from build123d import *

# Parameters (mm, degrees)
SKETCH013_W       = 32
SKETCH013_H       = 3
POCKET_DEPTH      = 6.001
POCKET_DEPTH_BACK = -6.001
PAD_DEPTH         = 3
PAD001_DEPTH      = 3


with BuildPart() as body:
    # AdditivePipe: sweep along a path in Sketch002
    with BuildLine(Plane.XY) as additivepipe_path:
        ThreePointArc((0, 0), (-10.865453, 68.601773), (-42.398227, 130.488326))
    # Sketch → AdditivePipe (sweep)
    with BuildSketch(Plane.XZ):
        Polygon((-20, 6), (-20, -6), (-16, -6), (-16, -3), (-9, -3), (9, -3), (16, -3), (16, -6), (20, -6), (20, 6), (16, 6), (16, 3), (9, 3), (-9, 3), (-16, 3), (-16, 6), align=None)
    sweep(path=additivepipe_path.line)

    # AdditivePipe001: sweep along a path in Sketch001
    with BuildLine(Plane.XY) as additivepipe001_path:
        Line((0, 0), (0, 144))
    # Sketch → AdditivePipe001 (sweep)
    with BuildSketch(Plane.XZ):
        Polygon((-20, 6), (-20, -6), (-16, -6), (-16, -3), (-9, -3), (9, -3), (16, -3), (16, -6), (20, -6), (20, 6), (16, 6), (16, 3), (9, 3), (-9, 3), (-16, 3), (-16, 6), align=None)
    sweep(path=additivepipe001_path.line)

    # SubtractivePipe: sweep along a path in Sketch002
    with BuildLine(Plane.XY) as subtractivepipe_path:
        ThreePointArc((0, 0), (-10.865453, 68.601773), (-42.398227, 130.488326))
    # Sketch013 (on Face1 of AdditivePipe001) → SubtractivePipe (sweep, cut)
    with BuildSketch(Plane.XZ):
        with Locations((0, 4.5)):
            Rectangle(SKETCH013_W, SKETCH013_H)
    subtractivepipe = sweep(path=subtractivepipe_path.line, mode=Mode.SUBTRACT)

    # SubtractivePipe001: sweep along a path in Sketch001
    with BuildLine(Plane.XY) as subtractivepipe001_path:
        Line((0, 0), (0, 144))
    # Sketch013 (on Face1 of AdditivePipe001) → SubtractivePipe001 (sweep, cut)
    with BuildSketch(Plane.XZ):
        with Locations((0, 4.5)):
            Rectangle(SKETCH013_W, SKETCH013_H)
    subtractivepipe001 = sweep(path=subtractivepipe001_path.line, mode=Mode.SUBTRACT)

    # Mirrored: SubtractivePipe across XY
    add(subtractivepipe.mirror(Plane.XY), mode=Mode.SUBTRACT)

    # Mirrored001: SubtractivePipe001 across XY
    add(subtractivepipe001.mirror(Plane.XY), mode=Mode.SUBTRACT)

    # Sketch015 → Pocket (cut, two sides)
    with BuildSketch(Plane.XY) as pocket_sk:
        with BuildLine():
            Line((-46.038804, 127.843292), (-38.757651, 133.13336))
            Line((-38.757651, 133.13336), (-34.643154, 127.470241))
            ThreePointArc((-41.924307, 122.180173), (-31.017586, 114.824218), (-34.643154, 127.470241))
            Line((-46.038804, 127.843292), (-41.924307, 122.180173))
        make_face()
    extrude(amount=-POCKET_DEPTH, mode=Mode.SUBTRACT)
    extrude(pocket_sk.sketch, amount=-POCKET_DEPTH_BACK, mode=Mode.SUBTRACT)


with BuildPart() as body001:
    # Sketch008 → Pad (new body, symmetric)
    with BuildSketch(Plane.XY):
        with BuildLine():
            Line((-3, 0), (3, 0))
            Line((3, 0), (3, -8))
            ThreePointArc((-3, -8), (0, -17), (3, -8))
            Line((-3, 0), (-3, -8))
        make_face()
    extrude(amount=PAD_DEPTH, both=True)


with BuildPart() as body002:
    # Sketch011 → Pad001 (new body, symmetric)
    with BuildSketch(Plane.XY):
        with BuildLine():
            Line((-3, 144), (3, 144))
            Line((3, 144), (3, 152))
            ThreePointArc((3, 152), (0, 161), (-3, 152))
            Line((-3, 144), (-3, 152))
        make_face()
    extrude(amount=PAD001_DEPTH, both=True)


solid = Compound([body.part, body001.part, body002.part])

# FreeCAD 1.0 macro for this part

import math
import FreeCAD as App
import Part
import Sketcher
Q = App.Units.Quantity

doc = App.newDocument("Part")
body = doc.addObject("PartDesign::Body", "Body")

# Sketch on XZ plane
sketch1 = body.newObject("Sketcher::SketchObject", "Sketch")
sketch1.AttachmentSupport = (doc.getObject("XZ_Plane"), [""])
sketch1.MapMode = "FlatFace"
sketch1.addGeometry([
    Part.LineSegment(App.Vector(-20, 6, 0), App.Vector(-20, -6, 0)),  # 0
    Part.LineSegment(App.Vector(-20, -6, 0), App.Vector(-16, -6, 0)),  # 1
    Part.LineSegment(App.Vector(-16, -6, 0), App.Vector(-16, -3, 0)),  # 2
    Part.LineSegment(App.Vector(-16, -3, 0), App.Vector(16, -3, 0)),  # 3
    Part.LineSegment(App.Vector(16, -3, 0), App.Vector(16, -6, 0)),  # 4
    Part.LineSegment(App.Vector(16, -6, 0), App.Vector(20, -6, 0)),  # 5
    Part.LineSegment(App.Vector(20, -6, 0), App.Vector(20, 6, 0)),  # 6
    Part.LineSegment(App.Vector(20, 6, 0), App.Vector(16, 6, 0)),  # 7
    Part.LineSegment(App.Vector(16, 6, 0), App.Vector(16, 3, 0)),  # 8
    Part.LineSegment(App.Vector(16, 3, 0), App.Vector(-16, 3, 0)),  # 9
    Part.LineSegment(App.Vector(-16, 3, 0), App.Vector(-16, 6, 0)),  # 10
    Part.LineSegment(App.Vector(-16, 6, 0), App.Vector(-20, 6, 0)),  # 11
], False)
sketch1.addConstraint([
    Sketcher.Constraint("Coincident", 0, 2, 1, 1),
    Sketcher.Constraint("Coincident", 1, 2, 2, 1),
    Sketcher.Constraint("Coincident", 2, 2, 3, 1),
    Sketcher.Constraint("Coincident", 3, 2, 4, 1),
    Sketcher.Constraint("Coincident", 4, 2, 5, 1),
    Sketcher.Constraint("Coincident", 5, 2, 6, 1),
    Sketcher.Constraint("Coincident", 6, 2, 7, 1),
    Sketcher.Constraint("Coincident", 7, 2, 8, 1),
    Sketcher.Constraint("Coincident", 8, 2, 9, 1),
    Sketcher.Constraint("Coincident", 9, 2, 10, 1),
    Sketcher.Constraint("Coincident", 10, 2, 11, 1),
    Sketcher.Constraint("Coincident", 11, 2, 0, 1),
    Sketcher.Constraint("Vertical", 0),
    Sketcher.Constraint("Horizontal", 1),
    Sketcher.Constraint("Vertical", 2),
    Sketcher.Constraint("Horizontal", 3),
    Sketcher.Constraint("Vertical", 4),
    Sketcher.Constraint("Horizontal", 5),
    Sketcher.Constraint("Vertical", 6),
    Sketcher.Constraint("Horizontal", 7),
    Sketcher.Constraint("Vertical", 8),
    Sketcher.Constraint("Horizontal", 9),
    Sketcher.Constraint("Vertical", 10),
    Sketcher.Constraint("Horizontal", 11),
    Sketcher.Constraint("Symmetric", 0, 2, 6, 2, -1, 1),
    Sketcher.Constraint("Symmetric", 2, 2, 8, 2, -1, 1),
    Sketcher.Constraint("Symmetric", 4, 2, 10, 2, -1, 1),
    Sketcher.Constraint("Symmetric", 1, 2, 4, 2, -2),
    Sketcher.Constraint("DistanceX", 1, 1, 1, 2, Q("4 mm")),
    Sketcher.Constraint("DistanceX", 3, 1, 3, 2, Q("32 mm")),
    Sketcher.Constraint("DistanceY", 0, 2, 0, 1, Q("12 mm")),
    Sketcher.Constraint("DistanceY", 2, 1, 2, 2, Q("3 mm")),
])

# Sketch on XY plane
sketch2 = body.newObject("Sketcher::SketchObject", "Sketch001")
sketch2.AttachmentSupport = (doc.getObject("XY_Plane"), [""])
sketch2.MapMode = "FlatFace"
sketch2.addGeometry(Part.ArcOfCircle(Part.Circle(App.Vector(-222, 0, 0), App.Vector(0, 0, 1), 222), math.radians(0), math.radians(36)), False)
sketch2.addConstraint([
    Sketcher.Constraint("Coincident", 0, 1, -1, 1),
    Sketcher.Constraint("Radius", 0, Q("221.999993 mm")),
    Sketcher.Constraint("DistanceX", 0, 2, -1, 1, Q("42.398227 mm")),
    Sketcher.Constraint("DistanceY", -1, 1, 0, 2, Q("130.488326 mm")),
])
doc.recompute()

additivepipe = body.newObject("PartDesign::AdditivePipe", "AdditivePipe")
additivepipe.Profile = sketch1
additivepipe.Spine = (sketch2, ["Edge1"])

# Sketch on XZ plane
sketch3 = body.newObject("Sketcher::SketchObject", "Sketch002")
sketch3.AttachmentSupport = (doc.getObject("XZ_Plane"), [""])
sketch3.MapMode = "FlatFace"
sketch3.addGeometry([
    Part.LineSegment(App.Vector(-20, 6, 0), App.Vector(-20, -6, 0)),  # 0
    Part.LineSegment(App.Vector(-20, -6, 0), App.Vector(-16, -6, 0)),  # 1
    Part.LineSegment(App.Vector(-16, -6, 0), App.Vector(-16, -3, 0)),  # 2
    Part.LineSegment(App.Vector(-16, -3, 0), App.Vector(16, -3, 0)),  # 3
    Part.LineSegment(App.Vector(16, -3, 0), App.Vector(16, -6, 0)),  # 4
    Part.LineSegment(App.Vector(16, -6, 0), App.Vector(20, -6, 0)),  # 5
    Part.LineSegment(App.Vector(20, -6, 0), App.Vector(20, 6, 0)),  # 6
    Part.LineSegment(App.Vector(20, 6, 0), App.Vector(16, 6, 0)),  # 7
    Part.LineSegment(App.Vector(16, 6, 0), App.Vector(16, 3, 0)),  # 8
    Part.LineSegment(App.Vector(16, 3, 0), App.Vector(-16, 3, 0)),  # 9
    Part.LineSegment(App.Vector(-16, 3, 0), App.Vector(-16, 6, 0)),  # 10
    Part.LineSegment(App.Vector(-16, 6, 0), App.Vector(-20, 6, 0)),  # 11
], False)
sketch3.addConstraint([
    Sketcher.Constraint("Coincident", 0, 2, 1, 1),
    Sketcher.Constraint("Coincident", 1, 2, 2, 1),
    Sketcher.Constraint("Coincident", 2, 2, 3, 1),
    Sketcher.Constraint("Coincident", 3, 2, 4, 1),
    Sketcher.Constraint("Coincident", 4, 2, 5, 1),
    Sketcher.Constraint("Coincident", 5, 2, 6, 1),
    Sketcher.Constraint("Coincident", 6, 2, 7, 1),
    Sketcher.Constraint("Coincident", 7, 2, 8, 1),
    Sketcher.Constraint("Coincident", 8, 2, 9, 1),
    Sketcher.Constraint("Coincident", 9, 2, 10, 1),
    Sketcher.Constraint("Coincident", 10, 2, 11, 1),
    Sketcher.Constraint("Coincident", 11, 2, 0, 1),
    Sketcher.Constraint("Vertical", 0),
    Sketcher.Constraint("Horizontal", 1),
    Sketcher.Constraint("Vertical", 2),
    Sketcher.Constraint("Horizontal", 3),
    Sketcher.Constraint("Vertical", 4),
    Sketcher.Constraint("Horizontal", 5),
    Sketcher.Constraint("Vertical", 6),
    Sketcher.Constraint("Horizontal", 7),
    Sketcher.Constraint("Vertical", 8),
    Sketcher.Constraint("Horizontal", 9),
    Sketcher.Constraint("Vertical", 10),
    Sketcher.Constraint("Horizontal", 11),
    Sketcher.Constraint("Symmetric", 0, 2, 6, 2, -1, 1),
    Sketcher.Constraint("Symmetric", 2, 2, 8, 2, -1, 1),
    Sketcher.Constraint("Symmetric", 4, 2, 10, 2, -1, 1),
    Sketcher.Constraint("Symmetric", 1, 2, 4, 2, -2),
    Sketcher.Constraint("DistanceX", 1, 1, 1, 2, Q("4 mm")),
    Sketcher.Constraint("DistanceX", 3, 1, 3, 2, Q("32 mm")),
    Sketcher.Constraint("DistanceY", 0, 2, 0, 1, Q("12 mm")),
    Sketcher.Constraint("DistanceY", 2, 1, 2, 2, Q("3 mm")),
])

# Sketch on XY plane
sketch4 = body.newObject("Sketcher::SketchObject", "Sketch003")
sketch4.AttachmentSupport = (doc.getObject("XY_Plane"), [""])
sketch4.MapMode = "FlatFace"
sketch4.addGeometry(Part.LineSegment(App.Vector(0, 0, 0), App.Vector(0, 144, 0)), False)
sketch4.addConstraint([
    Sketcher.Constraint("Vertical", 0),
    Sketcher.Constraint("Coincident", 0, 1, -1, 1),
    Sketcher.Constraint("DistanceY", 0, 1, 0, 2, Q("144 mm")),
])
doc.recompute()

additivepipe2 = body.newObject("PartDesign::AdditivePipe", "AdditivePipe001")
additivepipe2.Profile = sketch3
additivepipe2.Spine = (sketch4, ["Edge1"])

# Sketch on XZ plane
sketch5 = body.newObject("Sketcher::SketchObject", "Sketch004")
sketch5.AttachmentSupport = (doc.getObject("XZ_Plane"), [""])
sketch5.MapMode = "FlatFace"
sketch5.addGeometry([
    Part.LineSegment(App.Vector(-16, 6, 0), App.Vector(-16, 3, 0)),
    Part.LineSegment(App.Vector(-16, 3, 0), App.Vector(16, 3, 0)),
    Part.LineSegment(App.Vector(16, 3, 0), App.Vector(16, 6, 0)),
    Part.LineSegment(App.Vector(16, 6, 0), App.Vector(-16, 6, 0)),
], False)
sketch5.addConstraint([
    Sketcher.Constraint("Coincident", 0, 2, 1, 1),
    Sketcher.Constraint("Coincident", 1, 2, 2, 1),
    Sketcher.Constraint("Coincident", 2, 2, 3, 1),
    Sketcher.Constraint("Coincident", 3, 2, 0, 1),
    Sketcher.Constraint("Vertical", 0),
    Sketcher.Constraint("Horizontal", 1),
    Sketcher.Constraint("Vertical", 2),
    Sketcher.Constraint("Horizontal", 3),
    Sketcher.Constraint("DistanceX", 1, 1, 1, 2, Q("32 mm")),
    Sketcher.Constraint("DistanceY", 0, 2, 0, 1, Q("3 mm")),
    Sketcher.Constraint("DistanceX", 0, 2, -1, 1, Q("16 mm")),
    Sketcher.Constraint("DistanceY", -1, 1, 0, 2, Q("3 mm")),
])

# Sketch on XY plane
sketch6 = body.newObject("Sketcher::SketchObject", "Sketch005")
sketch6.AttachmentSupport = (doc.getObject("XY_Plane"), [""])
sketch6.MapMode = "FlatFace"
sketch6.addGeometry(Part.ArcOfCircle(Part.Circle(App.Vector(-222, 0, 0), App.Vector(0, 0, 1), 222), math.radians(0), math.radians(36)), False)
sketch6.addConstraint([
    Sketcher.Constraint("Coincident", 0, 1, -1, 1),
    Sketcher.Constraint("Radius", 0, Q("221.999993 mm")),
    Sketcher.Constraint("DistanceX", 0, 2, -1, 1, Q("42.398227 mm")),
    Sketcher.Constraint("DistanceY", -1, 1, 0, 2, Q("130.488326 mm")),
])
doc.recompute()

subtractivepipe = body.newObject("PartDesign::SubtractivePipe", "SubtractivePipe")
subtractivepipe.Profile = sketch5
subtractivepipe.Spine = (sketch6, ["Edge1"])

# Sketch on XZ plane
sketch7 = body.newObject("Sketcher::SketchObject", "Sketch006")
sketch7.AttachmentSupport = (doc.getObject("XZ_Plane"), [""])
sketch7.MapMode = "FlatFace"
sketch7.addGeometry([
    Part.LineSegment(App.Vector(-16, 6, 0), App.Vector(-16, 3, 0)),
    Part.LineSegment(App.Vector(-16, 3, 0), App.Vector(16, 3, 0)),
    Part.LineSegment(App.Vector(16, 3, 0), App.Vector(16, 6, 0)),
    Part.LineSegment(App.Vector(16, 6, 0), App.Vector(-16, 6, 0)),
], False)
sketch7.addConstraint([
    Sketcher.Constraint("Coincident", 0, 2, 1, 1),
    Sketcher.Constraint("Coincident", 1, 2, 2, 1),
    Sketcher.Constraint("Coincident", 2, 2, 3, 1),
    Sketcher.Constraint("Coincident", 3, 2, 0, 1),
    Sketcher.Constraint("Vertical", 0),
    Sketcher.Constraint("Horizontal", 1),
    Sketcher.Constraint("Vertical", 2),
    Sketcher.Constraint("Horizontal", 3),
    Sketcher.Constraint("DistanceX", 1, 1, 1, 2, Q("32 mm")),
    Sketcher.Constraint("DistanceY", 0, 2, 0, 1, Q("3 mm")),
    Sketcher.Constraint("DistanceX", 0, 2, -1, 1, Q("16 mm")),
    Sketcher.Constraint("DistanceY", -1, 1, 0, 2, Q("3 mm")),
])

# Sketch on XY plane
sketch8 = body.newObject("Sketcher::SketchObject", "Sketch007")
sketch8.AttachmentSupport = (doc.getObject("XY_Plane"), [""])
sketch8.MapMode = "FlatFace"
sketch8.addGeometry(Part.LineSegment(App.Vector(0, 0, 0), App.Vector(0, 144, 0)), False)
sketch8.addConstraint([
    Sketcher.Constraint("Vertical", 0),
    Sketcher.Constraint("Coincident", 0, 1, -1, 1),
    Sketcher.Constraint("DistanceY", 0, 1, 0, 2, Q("144 mm")),
])
doc.recompute()

subtractivepipe2 = body.newObject("PartDesign::SubtractivePipe", "SubtractivePipe001")
subtractivepipe2.Profile = sketch7
subtractivepipe2.Spine = (sketch8, ["Edge1"])
doc.recompute()

mirrored = body.newObject("PartDesign::Mirrored", "Mirrored")
mirrored.Originals = [subtractivepipe]
mirrored.MirrorPlane = (doc.getObject("XY_Plane"), [""])
body.Tip = mirrored
doc.recompute()

mirrored2 = body.newObject("PartDesign::Mirrored", "Mirrored001")
mirrored2.Originals = [subtractivepipe2]
mirrored2.MirrorPlane = (doc.getObject("XY_Plane"), [""])
body.Tip = mirrored2

# Sketch on XY plane
sketch9 = body.newObject("Sketcher::SketchObject", "Sketch008")
sketch9.AttachmentSupport = (doc.getObject("XY_Plane"), [""])
sketch9.MapMode = "FlatFace"
sketch9.addGeometry([
    Part.LineSegment(App.Vector(-39, 133, 0), App.Vector(-46, 128, 0)),
    Part.LineSegment(App.Vector(-46, 128, 0), App.Vector(-42, 122, 0)),
    Part.ArcOfCircle(Part.Circle(App.Vector(-35, 120, 0), App.Vector(0, 0, 1), 7), math.radians(166), math.radians(446)),
    Part.LineSegment(App.Vector(-35, 127, 0), App.Vector(-39, 133, 0)),
], False)
sketch9.addConstraint([
    Sketcher.Constraint("Coincident", 0, 2, 1, 1),
    Sketcher.Constraint("Coincident", 1, 2, 2, 1),
    Sketcher.Constraint("Coincident", 2, 2, 3, 1),
    Sketcher.Constraint("Coincident", 3, 2, 0, 1),
    Sketcher.Constraint("Perpendicular", 0, 1),
    Sketcher.Constraint("Parallel", 1, 3),
    Sketcher.Constraint("Equal", 1, 3),
    Sketcher.Constraint("Radius", 2, Q("7 mm")),
    Sketcher.Constraint("Angle", 0, Q("-143.999996 deg")),
    Sketcher.Constraint("Distance", 0, Q("9 mm")),
    Sketcher.Constraint("Distance", 1, Q("7 mm")),
    Sketcher.Constraint("DistanceY", -1, 1, 2, 2, Q("127.470241 mm")),
    Sketcher.Constraint("DistanceX", 3, 2, -1, 1, Q("38.757651 mm")),
])
pocket1 = body.newObject("PartDesign::Pocket", "Pocket")
pocket1.Profile = sketch9
pocket1.Type = "ThroughAll"
pocket1.Midplane = True
body2 = doc.addObject("PartDesign::Body", "Body001")

# Sketch on XY plane
sketch10 = body2.newObject("Sketcher::SketchObject", "Sketch009")
sketch10.AttachmentSupport = (doc.getObject("XY_Plane001"), [""])
sketch10.MapMode = "FlatFace"
sketch10.addGeometry([
    Part.LineSegment(App.Vector(3, 0, 0), App.Vector(-3, 0, 0)),
    Part.LineSegment(App.Vector(-3, 0, 0), App.Vector(-3, -8, 0)),
    Part.ArcOfCircle(Part.Circle(App.Vector(0, -12, 0), App.Vector(0, 0, 1), 5), math.radians(127), math.radians(413)),
    Part.LineSegment(App.Vector(3, -8, 0), App.Vector(3, 0, 0)),
], False)
sketch10.addConstraint([
    Sketcher.Constraint("Coincident", 0, 2, 1, 1),
    Sketcher.Constraint("Coincident", 1, 2, 2, 1),
    Sketcher.Constraint("Coincident", 2, 2, 3, 1),
    Sketcher.Constraint("Coincident", 3, 2, 0, 1),
    Sketcher.Constraint("Horizontal", 0),
    Sketcher.Constraint("Vertical", 1),
    Sketcher.Constraint("Vertical", 3),
    Sketcher.Constraint("Symmetric", 0, 2, 3, 2, -1, 1),
    Sketcher.Constraint("PointOnObject", 2, 3, -2),
    Sketcher.Constraint("Radius", 2, Q("5 mm")),
    Sketcher.Constraint("DistanceX", 0, 2, 0, 1, Q("6 mm")),
    Sketcher.Constraint("DistanceY", 1, 2, 1, 1, Q("8 mm")),
])
pad1 = body2.newObject("PartDesign::Pad", "Pad")
pad1.Profile = sketch10
pad1.Length = 6
pad1.Midplane = True
body3 = doc.addObject("PartDesign::Body", "Body002")

# Sketch on XY plane
sketch11 = body3.newObject("Sketcher::SketchObject", "Sketch010")
sketch11.AttachmentSupport = (doc.getObject("XY_Plane002"), [""])
sketch11.MapMode = "FlatFace"
sketch11.addGeometry([
    Part.LineSegment(App.Vector(-3, 144, 0), App.Vector(3, 144, 0)),
    Part.LineSegment(App.Vector(3, 144, 0), App.Vector(3, 152, 0)),
    Part.ArcOfCircle(Part.Circle(App.Vector(0, 156, 0), App.Vector(0, 0, 1), 5), math.radians(-53), math.radians(233)),
    Part.LineSegment(App.Vector(-3, 152, 0), App.Vector(-3, 144, 0)),
], False)
sketch11.addConstraint([
    Sketcher.Constraint("Coincident", 0, 2, 1, 1),
    Sketcher.Constraint("Coincident", 1, 2, 2, 1),
    Sketcher.Constraint("Coincident", 2, 2, 3, 1),
    Sketcher.Constraint("Coincident", 3, 2, 0, 1),
    Sketcher.Constraint("Horizontal", 0),
    Sketcher.Constraint("Vertical", 1),
    Sketcher.Constraint("Vertical", 3),
    Sketcher.Constraint("Symmetric", 1, 2, 2, 2, -2),
    Sketcher.Constraint("Radius", 2, Q("5 mm")),
    Sketcher.Constraint("DistanceX", 0, 1, 0, 2, Q("6 mm")),
    Sketcher.Constraint("DistanceY", 1, 1, 1, 2, Q("8 mm")),
    Sketcher.Constraint("DistanceY", -1, 1, 2, 3, Q("156 mm")),
])
pad2 = body3.newObject("PartDesign::Pad", "Pad001")
pad2.Profile = sketch11
pad2.Length = 6
pad2.Midplane = True

doc.recompute()
